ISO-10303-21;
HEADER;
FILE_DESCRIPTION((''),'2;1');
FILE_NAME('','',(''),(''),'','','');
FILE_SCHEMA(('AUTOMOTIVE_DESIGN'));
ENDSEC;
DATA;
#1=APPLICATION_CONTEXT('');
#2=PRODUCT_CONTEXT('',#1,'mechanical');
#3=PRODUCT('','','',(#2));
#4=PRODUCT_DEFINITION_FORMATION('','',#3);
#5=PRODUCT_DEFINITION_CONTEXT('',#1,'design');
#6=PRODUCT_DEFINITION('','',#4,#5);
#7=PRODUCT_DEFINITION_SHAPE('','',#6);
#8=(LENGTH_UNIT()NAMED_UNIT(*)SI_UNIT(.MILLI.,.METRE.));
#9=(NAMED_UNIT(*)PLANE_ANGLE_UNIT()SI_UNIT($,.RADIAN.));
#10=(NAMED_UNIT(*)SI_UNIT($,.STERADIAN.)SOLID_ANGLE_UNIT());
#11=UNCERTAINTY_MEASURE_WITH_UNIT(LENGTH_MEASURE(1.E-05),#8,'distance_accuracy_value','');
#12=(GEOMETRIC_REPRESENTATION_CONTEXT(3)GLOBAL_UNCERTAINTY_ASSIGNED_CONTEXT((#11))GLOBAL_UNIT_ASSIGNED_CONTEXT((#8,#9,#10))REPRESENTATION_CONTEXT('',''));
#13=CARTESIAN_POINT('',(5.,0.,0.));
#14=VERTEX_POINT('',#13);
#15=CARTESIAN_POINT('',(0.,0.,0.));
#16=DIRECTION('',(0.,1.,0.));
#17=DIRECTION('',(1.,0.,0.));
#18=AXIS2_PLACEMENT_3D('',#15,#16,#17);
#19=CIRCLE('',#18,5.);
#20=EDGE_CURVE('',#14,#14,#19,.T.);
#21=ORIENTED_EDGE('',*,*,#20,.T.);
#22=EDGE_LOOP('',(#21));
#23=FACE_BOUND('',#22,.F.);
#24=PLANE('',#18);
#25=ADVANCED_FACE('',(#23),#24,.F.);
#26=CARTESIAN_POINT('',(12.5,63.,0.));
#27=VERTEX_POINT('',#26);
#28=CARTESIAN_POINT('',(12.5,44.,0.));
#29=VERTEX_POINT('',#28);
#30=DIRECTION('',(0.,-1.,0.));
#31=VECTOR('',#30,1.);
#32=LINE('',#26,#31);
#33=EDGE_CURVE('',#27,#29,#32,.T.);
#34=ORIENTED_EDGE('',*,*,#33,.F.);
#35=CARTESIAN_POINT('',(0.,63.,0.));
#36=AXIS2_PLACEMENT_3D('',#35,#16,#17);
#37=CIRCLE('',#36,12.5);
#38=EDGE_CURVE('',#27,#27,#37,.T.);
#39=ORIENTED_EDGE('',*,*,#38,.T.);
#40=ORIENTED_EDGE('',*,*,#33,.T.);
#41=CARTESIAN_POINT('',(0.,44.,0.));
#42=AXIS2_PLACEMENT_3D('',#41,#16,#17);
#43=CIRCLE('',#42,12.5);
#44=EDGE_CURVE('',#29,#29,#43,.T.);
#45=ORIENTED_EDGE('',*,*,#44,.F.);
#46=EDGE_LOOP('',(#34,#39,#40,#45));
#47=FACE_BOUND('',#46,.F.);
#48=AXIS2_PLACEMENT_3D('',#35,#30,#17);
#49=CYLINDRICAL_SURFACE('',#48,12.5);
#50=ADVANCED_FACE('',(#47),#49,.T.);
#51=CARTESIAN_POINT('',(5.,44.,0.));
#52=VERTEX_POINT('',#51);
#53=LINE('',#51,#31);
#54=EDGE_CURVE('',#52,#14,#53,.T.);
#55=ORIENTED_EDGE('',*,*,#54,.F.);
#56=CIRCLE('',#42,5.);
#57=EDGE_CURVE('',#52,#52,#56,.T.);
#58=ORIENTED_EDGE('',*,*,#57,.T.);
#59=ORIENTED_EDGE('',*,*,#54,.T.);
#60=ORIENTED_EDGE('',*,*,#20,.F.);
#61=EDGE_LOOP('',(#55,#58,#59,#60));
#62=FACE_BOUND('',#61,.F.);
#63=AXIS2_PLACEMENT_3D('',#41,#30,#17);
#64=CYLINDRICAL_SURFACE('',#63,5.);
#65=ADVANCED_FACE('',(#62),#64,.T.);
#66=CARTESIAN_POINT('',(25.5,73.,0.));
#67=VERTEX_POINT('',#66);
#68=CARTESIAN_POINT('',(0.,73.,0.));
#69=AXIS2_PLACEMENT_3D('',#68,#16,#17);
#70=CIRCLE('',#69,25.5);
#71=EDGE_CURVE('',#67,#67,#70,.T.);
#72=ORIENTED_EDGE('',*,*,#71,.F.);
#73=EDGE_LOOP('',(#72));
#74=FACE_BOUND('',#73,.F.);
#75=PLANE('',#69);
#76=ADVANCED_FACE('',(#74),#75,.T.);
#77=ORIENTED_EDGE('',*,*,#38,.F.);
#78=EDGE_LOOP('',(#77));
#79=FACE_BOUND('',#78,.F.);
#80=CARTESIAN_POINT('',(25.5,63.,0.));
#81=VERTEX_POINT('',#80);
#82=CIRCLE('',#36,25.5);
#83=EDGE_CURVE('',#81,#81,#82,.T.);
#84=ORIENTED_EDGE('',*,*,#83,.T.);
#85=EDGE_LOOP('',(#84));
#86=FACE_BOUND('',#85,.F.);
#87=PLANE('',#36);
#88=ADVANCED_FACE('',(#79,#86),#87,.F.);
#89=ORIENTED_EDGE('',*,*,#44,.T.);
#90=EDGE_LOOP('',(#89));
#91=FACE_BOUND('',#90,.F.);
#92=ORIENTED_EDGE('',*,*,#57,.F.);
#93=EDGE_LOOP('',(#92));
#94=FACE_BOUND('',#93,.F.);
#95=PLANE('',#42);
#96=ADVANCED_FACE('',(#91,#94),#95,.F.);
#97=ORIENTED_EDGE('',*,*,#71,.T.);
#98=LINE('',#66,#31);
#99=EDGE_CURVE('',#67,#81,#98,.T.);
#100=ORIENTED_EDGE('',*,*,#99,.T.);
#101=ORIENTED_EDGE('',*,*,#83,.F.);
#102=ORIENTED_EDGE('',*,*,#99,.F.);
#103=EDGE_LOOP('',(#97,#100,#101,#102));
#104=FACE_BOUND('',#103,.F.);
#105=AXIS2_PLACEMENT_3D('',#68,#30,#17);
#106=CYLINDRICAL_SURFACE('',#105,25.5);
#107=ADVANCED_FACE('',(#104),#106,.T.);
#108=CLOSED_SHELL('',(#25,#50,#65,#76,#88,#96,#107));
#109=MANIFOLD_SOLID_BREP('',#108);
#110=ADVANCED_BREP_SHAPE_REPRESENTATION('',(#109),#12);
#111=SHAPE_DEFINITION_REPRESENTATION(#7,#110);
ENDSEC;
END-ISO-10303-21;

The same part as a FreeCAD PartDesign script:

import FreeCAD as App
import Part
import Sketcher

V = App.Vector
Q = App.Units.Quantity

doc = App.newDocument("Part")
body = doc.addObject("PartDesign::Body", "Body")

# Sketch on XY plane
sketch1 = body.newObject("Sketcher::SketchObject", "Sketch")
sketch1.AttachmentSupport = (doc.getObject("XY_Plane"), [""])
sketch1.MapMode = "FlatFace"
sketch1.addGeometry(Part.LineSegment(V(0, 73, 0), V(0, 0, 0)), False)
sketch1.addGeometry(Part.LineSegment(V(0, 0, 0), V(5, 0, 0)), False)
sketch1.addGeometry(Part.LineSegment(V(5, 0, 0), V(5, 44, 0)), False)
sketch1.addGeometry(Part.LineSegment(V(5, 44, 0), V(12, 44, 0)), False)
sketch1.addGeometry(Part.LineSegment(V(12, 44, 0), V(12, 63, 0)), False)
sketch1.addGeometry(Part.LineSegment(V(12, 63, 0), V(26, 63, 0)), False)
sketch1.addGeometry(Part.LineSegment(V(26, 63, 0), V(26, 73, 0)), False)
sketch1.addGeometry(Part.LineSegment(V(26, 73, 0), V(0, 73, 0)), False)
sketch1.addConstraint(Sketcher.Constraint("Coincident", 0, 2, 1, 1))
sketch1.addConstraint(Sketcher.Constraint("Coincident", 1, 2, 2, 1))
sketch1.addConstraint(Sketcher.Constraint("Coincident", 2, 2, 3, 1))
sketch1.addConstraint(Sketcher.Constraint("Coincident", 3, 2, 4, 1))
sketch1.addConstraint(Sketcher.Constraint("Coincident", 4, 2, 5, 1))
sketch1.addConstraint(Sketcher.Constraint("Coincident", 5, 2, 6, 1))
sketch1.addConstraint(Sketcher.Constraint("Coincident", 6, 2, 7, 1))
sketch1.addConstraint(Sketcher.Constraint("Coincident", 7, 2, 0, 1))
sketch1.addConstraint(Sketcher.Constraint("Vertical", 0))
sketch1.addConstraint(Sketcher.Constraint("Horizontal", 1))
sketch1.addConstraint(Sketcher.Constraint("Vertical", 2))
sketch1.addConstraint(Sketcher.Constraint("Horizontal", 3))
sketch1.addConstraint(Sketcher.Constraint("Vertical", 4))
sketch1.addConstraint(Sketcher.Constraint("Horizontal", 5))
sketch1.addConstraint(Sketcher.Constraint("Vertical", 6))
sketch1.addConstraint(Sketcher.Constraint("Horizontal", 7))
sketch1.addConstraint(Sketcher.Constraint("Coincident", 0, 2, -1, 1))
sketch1.addConstraint(Sketcher.Constraint("DistanceX", 1, 1, 1, 2, Q("5 mm")))
sketch1.addConstraint(Sketcher.Constraint("DistanceY", 2, 1, 2, 2, Q("44 mm")))
sketch1.addConstraint(Sketcher.Constraint("DistanceY", 4, 1, 4, 2, Q("19 mm")))
sketch1.addConstraint(Sketcher.Constraint("DistanceY", 6, 1, 6, 2, Q("10 mm")))
sketch1.addConstraint(Sketcher.Constraint("DistanceX", 7, 2, 7, 1, Q("25.5 mm")))
sketch1.addConstraint(Sketcher.Constraint("DistanceX", -1, 1, 3, 2, Q("12.5 mm")))
revolution = body.newObject("PartDesign::Revolution", "Revolution")
revolution.Profile = sketch1
revolution.ReferenceAxis = (sketch1, ["V_Axis"])
revolution.Angle = 360

doc.recompute()
